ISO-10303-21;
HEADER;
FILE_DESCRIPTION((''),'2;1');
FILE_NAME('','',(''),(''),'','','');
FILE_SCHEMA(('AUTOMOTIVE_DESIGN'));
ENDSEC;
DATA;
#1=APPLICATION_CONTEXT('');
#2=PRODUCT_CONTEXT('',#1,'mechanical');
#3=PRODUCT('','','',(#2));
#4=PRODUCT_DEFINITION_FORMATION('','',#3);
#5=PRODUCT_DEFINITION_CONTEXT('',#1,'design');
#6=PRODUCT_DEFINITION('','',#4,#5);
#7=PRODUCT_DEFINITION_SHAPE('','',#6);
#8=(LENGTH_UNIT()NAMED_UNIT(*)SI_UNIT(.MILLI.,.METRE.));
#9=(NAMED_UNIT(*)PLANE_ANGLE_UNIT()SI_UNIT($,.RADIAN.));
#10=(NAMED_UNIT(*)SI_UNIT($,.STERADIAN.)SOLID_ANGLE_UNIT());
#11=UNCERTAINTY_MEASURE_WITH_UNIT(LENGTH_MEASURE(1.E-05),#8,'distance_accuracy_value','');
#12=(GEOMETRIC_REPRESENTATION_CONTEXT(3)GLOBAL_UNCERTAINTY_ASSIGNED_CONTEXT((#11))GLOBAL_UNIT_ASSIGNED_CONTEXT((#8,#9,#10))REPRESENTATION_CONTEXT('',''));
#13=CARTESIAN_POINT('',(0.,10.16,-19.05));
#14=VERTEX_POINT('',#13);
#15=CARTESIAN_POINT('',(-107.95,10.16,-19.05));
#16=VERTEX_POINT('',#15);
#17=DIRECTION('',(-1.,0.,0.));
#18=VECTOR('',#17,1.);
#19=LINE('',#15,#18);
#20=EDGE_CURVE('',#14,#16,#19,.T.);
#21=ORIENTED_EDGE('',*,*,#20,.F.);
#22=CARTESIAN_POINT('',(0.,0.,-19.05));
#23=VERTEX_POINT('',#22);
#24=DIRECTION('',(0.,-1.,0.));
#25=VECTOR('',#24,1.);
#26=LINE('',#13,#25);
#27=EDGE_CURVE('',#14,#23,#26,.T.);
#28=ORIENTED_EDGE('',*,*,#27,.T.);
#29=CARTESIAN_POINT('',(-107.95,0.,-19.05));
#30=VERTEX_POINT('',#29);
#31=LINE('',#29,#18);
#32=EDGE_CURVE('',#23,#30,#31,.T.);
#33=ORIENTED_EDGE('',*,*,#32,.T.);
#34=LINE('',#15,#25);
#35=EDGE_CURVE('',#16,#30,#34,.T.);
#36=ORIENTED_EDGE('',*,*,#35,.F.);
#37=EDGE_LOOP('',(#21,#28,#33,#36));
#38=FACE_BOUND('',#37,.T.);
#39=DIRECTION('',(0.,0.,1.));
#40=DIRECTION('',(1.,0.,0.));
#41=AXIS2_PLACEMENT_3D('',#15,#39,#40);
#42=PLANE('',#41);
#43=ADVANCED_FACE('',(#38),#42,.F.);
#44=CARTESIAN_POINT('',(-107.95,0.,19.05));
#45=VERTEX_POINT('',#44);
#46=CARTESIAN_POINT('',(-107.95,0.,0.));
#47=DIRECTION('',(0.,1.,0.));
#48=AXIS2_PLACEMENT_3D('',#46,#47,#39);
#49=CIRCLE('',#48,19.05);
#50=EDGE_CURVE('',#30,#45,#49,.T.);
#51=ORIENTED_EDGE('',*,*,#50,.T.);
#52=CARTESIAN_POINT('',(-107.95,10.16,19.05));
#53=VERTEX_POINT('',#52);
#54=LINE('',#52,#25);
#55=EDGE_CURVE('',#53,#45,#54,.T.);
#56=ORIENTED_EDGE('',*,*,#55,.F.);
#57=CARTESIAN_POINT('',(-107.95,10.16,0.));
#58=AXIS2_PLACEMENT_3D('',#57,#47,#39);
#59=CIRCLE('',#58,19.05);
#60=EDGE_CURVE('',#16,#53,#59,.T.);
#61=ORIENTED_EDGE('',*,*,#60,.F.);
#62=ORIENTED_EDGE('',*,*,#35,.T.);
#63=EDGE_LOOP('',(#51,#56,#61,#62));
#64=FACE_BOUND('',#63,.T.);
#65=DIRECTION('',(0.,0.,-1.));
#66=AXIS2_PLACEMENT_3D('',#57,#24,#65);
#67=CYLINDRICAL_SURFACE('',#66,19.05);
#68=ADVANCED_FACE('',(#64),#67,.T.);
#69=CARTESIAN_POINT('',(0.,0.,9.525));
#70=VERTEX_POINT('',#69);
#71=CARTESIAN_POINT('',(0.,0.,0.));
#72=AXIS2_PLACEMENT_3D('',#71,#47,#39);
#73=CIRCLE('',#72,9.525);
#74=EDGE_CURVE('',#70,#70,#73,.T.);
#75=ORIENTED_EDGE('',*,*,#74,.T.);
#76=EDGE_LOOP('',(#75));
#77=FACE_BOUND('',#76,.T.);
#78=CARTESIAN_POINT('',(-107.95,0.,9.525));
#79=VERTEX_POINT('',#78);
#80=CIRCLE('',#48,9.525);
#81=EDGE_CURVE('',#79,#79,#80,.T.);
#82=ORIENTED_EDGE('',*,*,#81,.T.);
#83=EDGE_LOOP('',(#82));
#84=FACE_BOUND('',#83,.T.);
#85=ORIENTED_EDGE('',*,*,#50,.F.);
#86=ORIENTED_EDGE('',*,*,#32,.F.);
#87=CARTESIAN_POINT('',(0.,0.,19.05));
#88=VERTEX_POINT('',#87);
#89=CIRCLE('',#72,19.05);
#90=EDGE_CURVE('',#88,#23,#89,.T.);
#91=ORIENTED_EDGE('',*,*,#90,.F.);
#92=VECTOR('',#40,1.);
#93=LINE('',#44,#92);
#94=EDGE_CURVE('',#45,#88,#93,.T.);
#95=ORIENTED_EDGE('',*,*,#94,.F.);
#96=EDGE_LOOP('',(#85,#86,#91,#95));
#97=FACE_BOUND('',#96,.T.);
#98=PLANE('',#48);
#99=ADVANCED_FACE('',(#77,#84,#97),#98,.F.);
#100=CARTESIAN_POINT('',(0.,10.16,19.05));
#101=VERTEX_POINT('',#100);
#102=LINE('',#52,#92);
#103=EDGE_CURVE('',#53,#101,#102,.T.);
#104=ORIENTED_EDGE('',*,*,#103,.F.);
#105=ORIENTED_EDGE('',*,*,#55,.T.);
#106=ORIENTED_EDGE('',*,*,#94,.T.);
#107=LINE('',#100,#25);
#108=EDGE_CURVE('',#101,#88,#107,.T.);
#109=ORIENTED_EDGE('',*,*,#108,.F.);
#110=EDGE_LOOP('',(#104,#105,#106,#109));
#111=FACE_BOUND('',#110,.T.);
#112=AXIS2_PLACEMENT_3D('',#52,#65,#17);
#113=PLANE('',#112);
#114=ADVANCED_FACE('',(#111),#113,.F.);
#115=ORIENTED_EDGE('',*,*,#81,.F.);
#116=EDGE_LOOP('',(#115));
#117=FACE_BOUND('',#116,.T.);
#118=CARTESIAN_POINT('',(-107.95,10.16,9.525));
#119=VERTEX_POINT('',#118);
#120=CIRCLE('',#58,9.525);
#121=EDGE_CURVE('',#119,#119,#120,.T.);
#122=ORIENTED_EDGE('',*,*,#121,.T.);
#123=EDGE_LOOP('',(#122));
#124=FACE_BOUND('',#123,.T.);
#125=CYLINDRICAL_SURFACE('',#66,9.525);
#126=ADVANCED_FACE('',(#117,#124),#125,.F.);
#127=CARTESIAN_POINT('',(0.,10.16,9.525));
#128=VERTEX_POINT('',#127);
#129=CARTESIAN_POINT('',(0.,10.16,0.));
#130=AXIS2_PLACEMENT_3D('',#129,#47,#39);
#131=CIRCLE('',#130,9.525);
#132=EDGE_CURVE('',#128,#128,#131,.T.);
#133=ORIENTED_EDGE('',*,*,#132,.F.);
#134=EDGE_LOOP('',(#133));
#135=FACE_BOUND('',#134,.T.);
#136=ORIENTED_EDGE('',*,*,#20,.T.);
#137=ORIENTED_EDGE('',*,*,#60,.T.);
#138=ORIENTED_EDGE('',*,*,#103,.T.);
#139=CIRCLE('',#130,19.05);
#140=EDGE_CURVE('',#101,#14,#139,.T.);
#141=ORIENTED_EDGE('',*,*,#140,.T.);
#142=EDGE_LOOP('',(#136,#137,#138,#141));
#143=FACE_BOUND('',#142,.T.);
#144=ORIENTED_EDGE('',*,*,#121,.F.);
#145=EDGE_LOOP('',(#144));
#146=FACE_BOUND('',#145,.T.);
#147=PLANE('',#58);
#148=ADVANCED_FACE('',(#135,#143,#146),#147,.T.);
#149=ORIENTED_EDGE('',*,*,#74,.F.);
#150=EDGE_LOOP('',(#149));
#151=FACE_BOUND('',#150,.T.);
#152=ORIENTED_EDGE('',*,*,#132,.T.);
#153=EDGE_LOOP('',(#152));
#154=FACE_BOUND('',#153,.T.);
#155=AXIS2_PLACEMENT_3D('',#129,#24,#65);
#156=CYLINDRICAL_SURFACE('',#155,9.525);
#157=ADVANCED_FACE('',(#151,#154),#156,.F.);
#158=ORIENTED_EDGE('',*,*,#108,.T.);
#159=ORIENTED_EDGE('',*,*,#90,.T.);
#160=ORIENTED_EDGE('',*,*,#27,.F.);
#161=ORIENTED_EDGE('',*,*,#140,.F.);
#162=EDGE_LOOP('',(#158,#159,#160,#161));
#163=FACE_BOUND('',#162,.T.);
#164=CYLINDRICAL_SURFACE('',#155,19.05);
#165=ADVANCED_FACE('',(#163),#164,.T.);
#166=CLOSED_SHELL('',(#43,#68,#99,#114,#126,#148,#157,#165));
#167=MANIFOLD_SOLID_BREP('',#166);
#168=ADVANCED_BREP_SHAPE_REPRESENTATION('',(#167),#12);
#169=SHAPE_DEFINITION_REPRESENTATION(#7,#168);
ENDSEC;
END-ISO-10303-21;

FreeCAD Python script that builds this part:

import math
import FreeCAD as App
import Part
import Sketcher

V = App.Vector
Q = App.Units.Quantity

doc = App.newDocument("Part")
body = doc.addObject("PartDesign::Body", "Body")

sketch1 = body.newObject("Sketcher::SketchObject", "Sketch")
sketch1.AttachmentSupport = (doc.getObject("XZ_Plane"), [""])
sketch1.MapMode = "FlatFace"
sketch1.addGeometry([
    Part.LineSegment(V(0, -19, 0), V(-108, -19, 0)),
    Part.ArcOfCircle(Part.Circle(V(-108, 0, 0), V(0, 0, 1), 19), math.radians(90), math.radians(270)),
    Part.LineSegment(V(-108, 19, 0), V(0, 19, 0)),
    Part.ArcOfCircle(Part.Circle(V(0, 0, 0), V(0, 0, 1), 19), math.radians(-90), math.radians(90)),
    Part.Circle(V(0, 0, 0), V(0, 0, 1), 10),
    Part.Circle(V(-108, 0, 0), V(0, 0, 1), 10),
], False)
sketch1.addConstraint([
    Sketcher.Constraint("Tangent", 0, 2, 1, 2),
    Sketcher.Constraint("Tangent", 1, 1, 2, 1),
    Sketcher.Constraint("Tangent", 2, 2, 3, 2),
    Sketcher.Constraint("Tangent", 3, 1, 0, 1),
    Sketcher.Constraint("Horizontal", 0),
    Sketcher.Constraint("Horizontal", 2),
    Sketcher.Constraint("Coincident", 3, 3, -1, 1),
    Sketcher.Constraint("Coincident", 4, 3, -1, 1),
    Sketcher.Constraint("Coincident", 5, 3, 1, 3),
    Sketcher.Constraint("Equal", 4, 5),
    Sketcher.Constraint("Diameter", 4, Q("0.75 in")),
    Sketcher.Constraint("Radius", 1, Q("0.75 in")),
    Sketcher.Constraint("DistanceX", 0, 2, 0, 1, Q("4.25 in")),
])
pad1 = body.newObject("PartDesign::Pad", "Pad")
pad1.Profile = sketch1
pad1.Length = Q("0.4 in")
pad1.Reversed = True

doc.recompute()
